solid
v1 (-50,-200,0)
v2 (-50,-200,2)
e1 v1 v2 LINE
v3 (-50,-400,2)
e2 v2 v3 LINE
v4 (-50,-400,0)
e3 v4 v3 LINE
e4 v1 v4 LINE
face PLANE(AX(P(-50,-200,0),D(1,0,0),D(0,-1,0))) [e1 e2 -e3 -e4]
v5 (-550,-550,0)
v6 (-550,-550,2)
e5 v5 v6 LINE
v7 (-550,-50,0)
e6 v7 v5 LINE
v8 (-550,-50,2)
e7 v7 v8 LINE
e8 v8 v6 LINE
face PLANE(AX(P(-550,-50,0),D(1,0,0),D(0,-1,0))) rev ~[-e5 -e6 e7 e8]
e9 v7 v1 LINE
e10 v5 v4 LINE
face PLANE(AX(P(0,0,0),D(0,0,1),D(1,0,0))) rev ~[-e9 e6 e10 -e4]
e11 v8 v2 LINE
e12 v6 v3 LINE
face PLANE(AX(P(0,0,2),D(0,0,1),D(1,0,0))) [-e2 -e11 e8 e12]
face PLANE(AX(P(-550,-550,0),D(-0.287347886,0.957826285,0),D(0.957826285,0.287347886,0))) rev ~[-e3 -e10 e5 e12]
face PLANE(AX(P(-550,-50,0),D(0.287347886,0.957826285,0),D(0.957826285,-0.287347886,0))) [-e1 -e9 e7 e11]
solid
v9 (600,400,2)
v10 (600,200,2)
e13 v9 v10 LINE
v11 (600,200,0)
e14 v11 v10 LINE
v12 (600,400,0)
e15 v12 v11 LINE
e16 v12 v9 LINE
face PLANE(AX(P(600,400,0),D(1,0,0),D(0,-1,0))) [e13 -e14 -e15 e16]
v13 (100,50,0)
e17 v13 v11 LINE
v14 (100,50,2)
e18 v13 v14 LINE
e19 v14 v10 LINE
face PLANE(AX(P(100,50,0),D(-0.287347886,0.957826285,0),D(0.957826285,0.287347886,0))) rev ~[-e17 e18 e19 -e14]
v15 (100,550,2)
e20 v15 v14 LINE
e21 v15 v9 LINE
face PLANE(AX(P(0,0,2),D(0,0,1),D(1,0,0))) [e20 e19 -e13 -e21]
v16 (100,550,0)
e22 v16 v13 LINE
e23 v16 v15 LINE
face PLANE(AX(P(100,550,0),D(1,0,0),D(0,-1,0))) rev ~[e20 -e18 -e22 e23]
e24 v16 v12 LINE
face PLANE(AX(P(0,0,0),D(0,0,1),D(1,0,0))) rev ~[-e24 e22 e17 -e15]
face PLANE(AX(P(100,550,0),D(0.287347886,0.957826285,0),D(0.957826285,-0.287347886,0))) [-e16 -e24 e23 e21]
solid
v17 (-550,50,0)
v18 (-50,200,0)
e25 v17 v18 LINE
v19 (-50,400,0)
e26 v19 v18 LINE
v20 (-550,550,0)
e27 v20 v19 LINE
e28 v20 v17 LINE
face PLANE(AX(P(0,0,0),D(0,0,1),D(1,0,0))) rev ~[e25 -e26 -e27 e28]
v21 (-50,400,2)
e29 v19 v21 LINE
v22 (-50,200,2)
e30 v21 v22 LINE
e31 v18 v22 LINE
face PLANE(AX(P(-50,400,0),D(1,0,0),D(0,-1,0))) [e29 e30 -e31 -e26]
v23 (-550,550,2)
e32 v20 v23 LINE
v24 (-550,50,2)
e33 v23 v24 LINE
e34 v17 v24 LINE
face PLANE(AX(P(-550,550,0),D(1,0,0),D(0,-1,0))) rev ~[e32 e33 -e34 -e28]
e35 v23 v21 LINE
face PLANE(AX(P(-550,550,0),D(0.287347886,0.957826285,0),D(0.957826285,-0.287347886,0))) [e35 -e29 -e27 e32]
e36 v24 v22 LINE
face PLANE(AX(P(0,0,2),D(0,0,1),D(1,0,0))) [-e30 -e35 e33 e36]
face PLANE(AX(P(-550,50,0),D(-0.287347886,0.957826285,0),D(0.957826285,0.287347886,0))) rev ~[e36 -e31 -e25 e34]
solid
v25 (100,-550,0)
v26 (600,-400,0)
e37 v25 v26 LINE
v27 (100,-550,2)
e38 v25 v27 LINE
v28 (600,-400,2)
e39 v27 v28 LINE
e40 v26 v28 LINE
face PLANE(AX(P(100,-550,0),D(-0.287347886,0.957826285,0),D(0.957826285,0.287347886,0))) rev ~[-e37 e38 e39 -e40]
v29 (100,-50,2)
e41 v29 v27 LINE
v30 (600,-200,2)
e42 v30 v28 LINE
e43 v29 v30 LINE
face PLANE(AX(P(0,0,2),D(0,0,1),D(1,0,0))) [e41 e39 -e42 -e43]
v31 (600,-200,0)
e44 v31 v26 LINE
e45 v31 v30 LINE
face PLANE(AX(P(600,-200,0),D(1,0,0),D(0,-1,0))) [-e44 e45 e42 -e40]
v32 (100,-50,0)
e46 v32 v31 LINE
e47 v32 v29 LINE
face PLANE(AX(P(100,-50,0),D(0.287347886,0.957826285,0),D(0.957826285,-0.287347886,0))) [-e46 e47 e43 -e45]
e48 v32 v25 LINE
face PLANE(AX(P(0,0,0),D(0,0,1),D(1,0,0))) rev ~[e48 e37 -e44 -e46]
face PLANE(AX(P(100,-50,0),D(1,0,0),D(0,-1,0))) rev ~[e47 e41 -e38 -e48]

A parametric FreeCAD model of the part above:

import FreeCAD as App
import Part
import Sketcher

V = App.Vector


def add_polygon(sketch, points):
    """Adds a closed chain of lines whose ends are joined by coincident constraints."""
    first, n = sketch.GeometryCount, len(points)
    for a, b in zip(points, points[1:] + points[:1]):
        sketch.addGeometry(Part.LineSegment(App.Vector(*a, 0), App.Vector(*b, 0)), False)
    for i in range(n):
        sketch.addConstraint(Sketcher.Constraint("Coincident", first + i, 2, first + (i + 1) % n, 1))

doc = App.newDocument("Part")
body = doc.addObject("PartDesign::Body", "Body")
body.AllowCompound = True

sketch1 = body.newObject("Sketcher::SketchObject", "Sketch")
sketch1.AttachmentSupport = (doc.getObject("XY_Plane"), [""])
sketch1.MapMode = "FlatFace"
add_polygon(sketch1, [(-50, 400), (-550, 550), (-550, 50), (-50, 200)])
add_polygon(sketch1, [(-50, -200), (-550, -50), (-550, -550), (-50, -400)])
add_polygon(sketch1, [(600, -200), (100, -50), (100, -550), (600, -400)])
add_polygon(sketch1, [(600, 200), (600, 400), (100, 550), (100, 50)])
sketch1.addConstraint([
    Sketcher.Constraint("Vertical", 1),
    Sketcher.Constraint("Vertical", 3),
    Sketcher.Constraint("Vertical", 5),
    Sketcher.Constraint("Vertical", 7),
    Sketcher.Constraint("Vertical", 9),
    Sketcher.Constraint("Vertical", 11),
    Sketcher.Constraint("Vertical", 12),
    Sketcher.Constraint("Vertical", 14),
    Sketcher.Constraint("Symmetric", 1, 2, 4, 2, -1),
    Sketcher.Constraint("Symmetric", 3, 2, 6, 2, -1),
    Sketcher.Constraint("Symmetric", 10, 2, 12, 2, -1),
    Sketcher.Constraint("Symmetric", 9, 2, 13, 2, -1),
    Sketcher.Constraint("Parallel", 0, 4),
    Sketcher.Constraint("Parallel", 2, 6),
    Sketcher.Constraint("Parallel", 4, 8),
    Sketcher.Constraint("Parallel", 6, 10),
    Sketcher.Constraint("Parallel", 8, 13),
    Sketcher.Constraint("Parallel", 10, 15),
    Sketcher.Constraint("Horizontal", 4, 2, 8, 2),
    Sketcher.Constraint("Horizontal", 5, 2, 9, 2),
    Sketcher.Constraint("Horizontal", 6, 2, 10, 2),
    Sketcher.Constraint("Horizontal", 1, 2, 14, 2),
    Sketcher.Constraint("DistanceY", 1, 2, 1, 1, 500.0),
    Sketcher.Constraint("DistanceY", 3, 1, 3, 2, 200.0),
    Sketcher.Constraint("DistanceY", -1, 1, 2, 2, 200.0),
    Sketcher.Constraint("DistanceX", 1, 2, 2, 2, 500.0),
    Sketcher.Constraint("DistanceX", 0, 2, -1, 1, 550.0),
    Sketcher.Constraint("DistanceX", -1, 1, 8, 2, 100.0),
])
pad1 = body.newObject("PartDesign::Pad", "Pad")
pad1.Profile = sketch1
pad1.Length = 2

doc.recompute()
